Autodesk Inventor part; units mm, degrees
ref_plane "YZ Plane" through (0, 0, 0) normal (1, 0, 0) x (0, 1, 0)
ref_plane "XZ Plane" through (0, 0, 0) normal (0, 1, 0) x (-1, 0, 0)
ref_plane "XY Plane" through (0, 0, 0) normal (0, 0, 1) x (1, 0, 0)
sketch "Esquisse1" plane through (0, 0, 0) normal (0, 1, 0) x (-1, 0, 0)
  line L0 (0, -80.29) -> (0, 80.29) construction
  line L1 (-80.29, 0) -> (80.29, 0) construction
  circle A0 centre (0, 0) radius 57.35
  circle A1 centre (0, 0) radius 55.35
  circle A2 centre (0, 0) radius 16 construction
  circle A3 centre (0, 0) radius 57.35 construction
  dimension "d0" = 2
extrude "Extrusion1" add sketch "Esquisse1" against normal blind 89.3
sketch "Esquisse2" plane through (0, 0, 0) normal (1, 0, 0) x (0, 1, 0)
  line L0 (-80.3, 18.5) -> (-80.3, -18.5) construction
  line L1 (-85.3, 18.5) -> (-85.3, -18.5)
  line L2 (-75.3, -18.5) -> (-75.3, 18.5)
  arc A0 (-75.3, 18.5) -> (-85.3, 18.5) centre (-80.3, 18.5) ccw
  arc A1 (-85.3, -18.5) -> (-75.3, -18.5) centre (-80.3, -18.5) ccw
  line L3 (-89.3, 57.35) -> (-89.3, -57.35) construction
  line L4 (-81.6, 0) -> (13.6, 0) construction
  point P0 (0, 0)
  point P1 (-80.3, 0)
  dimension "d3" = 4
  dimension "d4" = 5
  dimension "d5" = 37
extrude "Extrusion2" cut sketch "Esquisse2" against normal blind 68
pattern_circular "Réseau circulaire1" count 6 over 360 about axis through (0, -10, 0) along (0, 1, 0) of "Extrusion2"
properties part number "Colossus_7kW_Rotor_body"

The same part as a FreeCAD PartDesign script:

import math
import FreeCAD as App
import Part
import Sketcher
from FreeCAD import Vector
Q = App.Units.Quantity

doc = App.newDocument("Part")
body = doc.addObject("PartDesign::Body", "Body")

# Sketch on XZ plane
sketch1 = body.newObject("Sketcher::SketchObject", "Sketch")
sketch1.AttachmentSupport = (doc.getObject("XZ_Plane"), [""])
sketch1.MapMode = "FlatFace"
sketch1.addGeometry([
    Part.Circle(Vector(0, 0, 0), Vector(0, 0, 1), 57),
    Part.Circle(Vector(0, 0, 0), Vector(0, 0, 1), 55),
], False)
sketch1.addConstraint([
    Sketcher.Constraint("Coincident", 0, 3, -1, 1),
    Sketcher.Constraint("Coincident", 1, 3, -1, 1),
    Sketcher.Constraint("Diameter", 0, Q("114.7 mm")),
    Sketcher.Constraint("Diameter", 1, Q("110.7 mm")),
])
pad1 = body.newObject("PartDesign::Pad", "Pad")
pad1.Profile = sketch1
pad1.Length = 89.3

# Sketch on YZ plane
sketch2 = body.newObject("Sketcher::SketchObject", "Sketch001")
sketch2.AttachmentSupport = (doc.getObject("YZ_Plane"), [""])
sketch2.MapMode = "FlatFace"
sketch2.addGeometry([
    Part.ArcOfCircle(Part.Circle(Vector(-80, 18, 0), Vector(0, 0, 1), 5), math.radians(0), math.radians(180)),
    Part.LineSegment(Vector(-85, 18, 0), Vector(-85, -18, 0)),
    Part.ArcOfCircle(Part.Circle(Vector(-80, -18, 0), Vector(0, 0, 1), 5), math.radians(180), math.radians(360)),
    Part.LineSegment(Vector(-75, -18, 0), Vector(-75, 18, 0)),
], False)
sketch2.addConstraint([
    Sketcher.Constraint("Tangent", 0, 2, 1, 1),
    Sketcher.Constraint("Tangent", 1, 2, 2, 1),
    Sketcher.Constraint("Tangent", 2, 2, 3, 1),
    Sketcher.Constraint("Tangent", 3, 2, 0, 1),
    Sketcher.Constraint("Vertical", 1),
    Sketcher.Constraint("Vertical", 3),
    Sketcher.Constraint("Radius", 0, Q("5 mm")),
    Sketcher.Constraint("DistanceY", 1, 2, 1, 1, Q("37 mm")),
    Sketcher.Constraint("DistanceX", 0, 3, -1, 1, Q("80.3 mm")),
    Sketcher.Constraint("DistanceY", -1, 1, 0, 3, Q("18.5 mm")),
])
pocket1 = body.newObject("PartDesign::Pocket", "Pocket")
pocket1.Profile = sketch2
pocket1.Length = 68
doc.recompute()

polarpattern = body.newObject("PartDesign::PolarPattern", "PolarPattern")
polarpattern.Originals = [pocket1]
polarpattern.Axis = (doc.getObject("Y_Axis"), [""])
polarpattern.Angle = 360
polarpattern.Occurrences = 6
body.Tip = polarpattern

doc.recompute()
